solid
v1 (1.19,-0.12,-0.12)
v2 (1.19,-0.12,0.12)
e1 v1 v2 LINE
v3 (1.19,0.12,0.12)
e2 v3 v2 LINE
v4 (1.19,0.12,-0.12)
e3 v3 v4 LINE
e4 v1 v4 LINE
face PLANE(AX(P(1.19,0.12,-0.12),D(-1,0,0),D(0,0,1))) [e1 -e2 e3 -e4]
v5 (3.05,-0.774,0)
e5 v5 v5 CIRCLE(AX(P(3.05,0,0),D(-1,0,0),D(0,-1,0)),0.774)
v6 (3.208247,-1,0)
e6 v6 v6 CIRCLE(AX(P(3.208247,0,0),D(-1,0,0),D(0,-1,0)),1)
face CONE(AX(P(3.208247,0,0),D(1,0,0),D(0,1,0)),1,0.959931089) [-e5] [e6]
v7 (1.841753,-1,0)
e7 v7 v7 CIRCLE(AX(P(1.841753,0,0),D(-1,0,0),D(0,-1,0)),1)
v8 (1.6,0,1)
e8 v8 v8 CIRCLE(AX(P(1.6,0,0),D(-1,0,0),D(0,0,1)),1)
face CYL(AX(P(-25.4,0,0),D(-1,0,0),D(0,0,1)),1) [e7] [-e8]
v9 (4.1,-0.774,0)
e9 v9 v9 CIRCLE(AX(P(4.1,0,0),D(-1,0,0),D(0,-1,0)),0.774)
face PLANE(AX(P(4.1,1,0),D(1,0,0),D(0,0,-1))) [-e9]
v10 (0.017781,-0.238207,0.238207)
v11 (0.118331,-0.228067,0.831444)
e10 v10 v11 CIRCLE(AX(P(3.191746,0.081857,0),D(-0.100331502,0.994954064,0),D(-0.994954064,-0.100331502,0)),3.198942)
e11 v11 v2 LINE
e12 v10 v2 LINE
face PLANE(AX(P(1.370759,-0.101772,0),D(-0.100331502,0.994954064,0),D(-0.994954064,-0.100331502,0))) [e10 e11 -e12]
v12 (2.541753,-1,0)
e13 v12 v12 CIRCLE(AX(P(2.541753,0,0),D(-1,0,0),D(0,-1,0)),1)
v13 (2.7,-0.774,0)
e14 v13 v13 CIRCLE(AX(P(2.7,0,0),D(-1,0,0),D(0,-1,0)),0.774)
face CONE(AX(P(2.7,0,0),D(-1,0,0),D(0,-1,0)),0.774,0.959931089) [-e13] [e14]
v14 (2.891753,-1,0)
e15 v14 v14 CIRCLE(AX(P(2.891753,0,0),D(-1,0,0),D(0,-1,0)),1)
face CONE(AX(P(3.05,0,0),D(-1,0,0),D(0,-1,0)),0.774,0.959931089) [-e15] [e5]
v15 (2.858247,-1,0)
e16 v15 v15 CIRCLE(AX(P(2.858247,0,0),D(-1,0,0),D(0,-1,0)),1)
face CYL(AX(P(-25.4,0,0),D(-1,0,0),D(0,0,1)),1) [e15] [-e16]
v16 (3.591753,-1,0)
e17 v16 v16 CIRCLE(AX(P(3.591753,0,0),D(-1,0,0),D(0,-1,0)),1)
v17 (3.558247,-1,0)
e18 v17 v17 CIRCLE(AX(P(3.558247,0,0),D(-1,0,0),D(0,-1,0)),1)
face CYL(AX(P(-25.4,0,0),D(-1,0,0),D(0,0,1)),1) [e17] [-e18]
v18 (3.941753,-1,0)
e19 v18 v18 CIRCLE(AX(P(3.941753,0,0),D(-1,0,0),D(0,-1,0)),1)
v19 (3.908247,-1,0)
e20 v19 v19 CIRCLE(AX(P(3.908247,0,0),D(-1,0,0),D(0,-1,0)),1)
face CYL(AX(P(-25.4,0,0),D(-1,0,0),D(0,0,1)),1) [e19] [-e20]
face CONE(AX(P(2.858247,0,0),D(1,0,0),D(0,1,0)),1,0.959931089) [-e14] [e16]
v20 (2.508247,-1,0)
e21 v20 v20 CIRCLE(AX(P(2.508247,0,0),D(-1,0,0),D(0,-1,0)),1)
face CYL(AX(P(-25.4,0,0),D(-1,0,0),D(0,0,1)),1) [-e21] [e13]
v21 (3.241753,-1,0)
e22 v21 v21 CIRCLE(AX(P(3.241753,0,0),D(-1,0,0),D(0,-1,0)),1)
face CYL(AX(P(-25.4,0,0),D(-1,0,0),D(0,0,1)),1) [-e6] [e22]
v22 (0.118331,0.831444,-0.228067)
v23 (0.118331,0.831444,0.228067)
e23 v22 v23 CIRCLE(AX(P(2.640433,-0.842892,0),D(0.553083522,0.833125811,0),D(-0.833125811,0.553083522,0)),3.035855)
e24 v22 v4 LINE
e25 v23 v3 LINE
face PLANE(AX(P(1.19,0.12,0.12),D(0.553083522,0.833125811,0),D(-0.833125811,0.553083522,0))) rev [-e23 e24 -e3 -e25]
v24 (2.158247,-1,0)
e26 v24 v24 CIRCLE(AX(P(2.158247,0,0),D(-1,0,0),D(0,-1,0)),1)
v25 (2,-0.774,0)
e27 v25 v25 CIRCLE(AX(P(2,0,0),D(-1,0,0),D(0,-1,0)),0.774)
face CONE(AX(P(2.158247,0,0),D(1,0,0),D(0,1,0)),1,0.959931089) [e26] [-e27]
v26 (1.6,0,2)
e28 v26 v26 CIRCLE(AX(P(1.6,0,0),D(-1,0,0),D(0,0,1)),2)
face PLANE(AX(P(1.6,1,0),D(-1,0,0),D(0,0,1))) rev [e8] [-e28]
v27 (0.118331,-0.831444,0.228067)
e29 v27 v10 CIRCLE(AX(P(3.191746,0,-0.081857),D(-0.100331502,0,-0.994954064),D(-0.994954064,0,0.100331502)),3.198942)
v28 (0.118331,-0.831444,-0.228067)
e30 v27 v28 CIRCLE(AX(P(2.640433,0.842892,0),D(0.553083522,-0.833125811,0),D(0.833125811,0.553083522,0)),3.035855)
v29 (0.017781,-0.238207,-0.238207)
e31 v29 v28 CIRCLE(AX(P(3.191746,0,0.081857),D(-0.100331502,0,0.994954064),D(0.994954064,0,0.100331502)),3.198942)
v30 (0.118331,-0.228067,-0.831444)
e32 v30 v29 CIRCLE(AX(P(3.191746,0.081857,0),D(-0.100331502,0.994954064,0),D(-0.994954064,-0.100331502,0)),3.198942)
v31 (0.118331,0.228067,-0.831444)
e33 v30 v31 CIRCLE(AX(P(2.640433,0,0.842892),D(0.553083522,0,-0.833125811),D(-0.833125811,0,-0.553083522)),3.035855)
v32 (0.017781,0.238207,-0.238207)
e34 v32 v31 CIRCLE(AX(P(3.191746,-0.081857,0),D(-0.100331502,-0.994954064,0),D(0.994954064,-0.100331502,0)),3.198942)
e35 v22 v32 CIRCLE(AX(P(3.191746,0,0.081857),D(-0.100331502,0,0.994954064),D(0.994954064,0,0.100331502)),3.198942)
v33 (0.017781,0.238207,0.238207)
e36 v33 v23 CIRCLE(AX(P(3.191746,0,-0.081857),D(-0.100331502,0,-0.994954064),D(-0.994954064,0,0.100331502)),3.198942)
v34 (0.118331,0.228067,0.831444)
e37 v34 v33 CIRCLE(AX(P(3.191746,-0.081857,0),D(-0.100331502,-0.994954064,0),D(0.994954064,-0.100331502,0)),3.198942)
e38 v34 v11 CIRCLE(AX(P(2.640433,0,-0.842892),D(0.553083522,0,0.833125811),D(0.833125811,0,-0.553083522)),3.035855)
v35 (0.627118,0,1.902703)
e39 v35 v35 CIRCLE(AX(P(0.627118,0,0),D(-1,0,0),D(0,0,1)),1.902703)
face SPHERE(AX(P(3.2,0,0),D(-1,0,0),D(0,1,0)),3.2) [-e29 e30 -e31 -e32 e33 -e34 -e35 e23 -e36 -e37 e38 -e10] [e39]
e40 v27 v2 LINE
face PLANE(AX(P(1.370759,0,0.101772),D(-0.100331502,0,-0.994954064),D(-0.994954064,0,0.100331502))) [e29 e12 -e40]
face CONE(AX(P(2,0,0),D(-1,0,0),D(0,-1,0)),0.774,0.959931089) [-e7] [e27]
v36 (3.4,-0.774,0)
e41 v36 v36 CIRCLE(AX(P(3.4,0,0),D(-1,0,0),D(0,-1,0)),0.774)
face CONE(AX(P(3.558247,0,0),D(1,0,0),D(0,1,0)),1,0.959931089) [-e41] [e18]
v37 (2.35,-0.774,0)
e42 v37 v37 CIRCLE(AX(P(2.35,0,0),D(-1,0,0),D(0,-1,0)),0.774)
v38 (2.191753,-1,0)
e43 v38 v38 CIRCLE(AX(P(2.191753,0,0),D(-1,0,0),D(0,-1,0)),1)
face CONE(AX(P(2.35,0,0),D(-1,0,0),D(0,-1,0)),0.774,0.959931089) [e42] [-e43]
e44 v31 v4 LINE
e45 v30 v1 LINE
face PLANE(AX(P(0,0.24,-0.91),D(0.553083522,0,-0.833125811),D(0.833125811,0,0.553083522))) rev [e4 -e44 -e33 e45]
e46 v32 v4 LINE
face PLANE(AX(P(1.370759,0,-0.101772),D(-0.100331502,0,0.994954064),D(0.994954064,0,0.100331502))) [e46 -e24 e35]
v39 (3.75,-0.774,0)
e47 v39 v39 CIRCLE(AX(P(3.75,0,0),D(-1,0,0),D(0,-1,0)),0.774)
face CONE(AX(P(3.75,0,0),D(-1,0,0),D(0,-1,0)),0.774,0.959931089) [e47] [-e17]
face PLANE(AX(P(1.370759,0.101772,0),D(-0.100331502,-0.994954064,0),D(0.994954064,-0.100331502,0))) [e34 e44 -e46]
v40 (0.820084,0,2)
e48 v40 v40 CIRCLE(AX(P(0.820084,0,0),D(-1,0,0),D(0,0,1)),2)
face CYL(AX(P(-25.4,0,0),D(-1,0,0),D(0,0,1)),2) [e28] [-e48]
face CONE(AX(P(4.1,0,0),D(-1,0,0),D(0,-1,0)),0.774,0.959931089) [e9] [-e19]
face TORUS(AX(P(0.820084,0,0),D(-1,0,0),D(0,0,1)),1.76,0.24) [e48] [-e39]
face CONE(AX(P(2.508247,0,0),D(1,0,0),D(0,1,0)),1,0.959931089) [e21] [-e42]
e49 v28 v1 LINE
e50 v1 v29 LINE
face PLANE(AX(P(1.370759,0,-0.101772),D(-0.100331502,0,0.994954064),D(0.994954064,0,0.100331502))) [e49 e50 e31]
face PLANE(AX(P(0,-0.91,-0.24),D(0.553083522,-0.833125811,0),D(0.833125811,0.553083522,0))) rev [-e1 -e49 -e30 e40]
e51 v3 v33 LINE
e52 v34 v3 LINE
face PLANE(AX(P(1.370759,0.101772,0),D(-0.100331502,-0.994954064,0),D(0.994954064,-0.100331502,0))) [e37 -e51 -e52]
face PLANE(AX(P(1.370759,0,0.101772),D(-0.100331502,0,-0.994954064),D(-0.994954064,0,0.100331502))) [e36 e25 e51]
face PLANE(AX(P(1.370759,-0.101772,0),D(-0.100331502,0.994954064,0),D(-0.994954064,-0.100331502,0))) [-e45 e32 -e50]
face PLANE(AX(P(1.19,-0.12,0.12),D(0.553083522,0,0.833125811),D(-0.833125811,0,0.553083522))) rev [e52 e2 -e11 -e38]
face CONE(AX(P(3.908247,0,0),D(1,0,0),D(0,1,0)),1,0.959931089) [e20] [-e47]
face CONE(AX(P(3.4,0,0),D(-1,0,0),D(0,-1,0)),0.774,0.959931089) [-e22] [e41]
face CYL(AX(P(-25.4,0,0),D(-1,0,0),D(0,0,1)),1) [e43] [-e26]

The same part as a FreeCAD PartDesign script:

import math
import FreeCAD as App
import Part
import Sketcher
Q = App.Units.Quantity


def add_polygon(sketch, points):
    """Adds a closed chain of lines whose ends are joined by coincident constraints."""
    first, n = sketch.GeometryCount, len(points)
    for a, b in zip(points, points[1:] + points[:1]):
        sketch.addGeometry(Part.LineSegment(App.Vector(*a, 0), App.Vector(*b, 0)), False)
    for i in range(n):
        sketch.addConstraint(Sketcher.Constraint("Coincident", first + i, 2, first + (i + 1) % n, 1))

doc = App.newDocument("Part")
body = doc.addObject("PartDesign::Body", "Body")

# Sketch on XY plane
sketch1 = body.newObject("Sketcher::SketchObject", "Sketch")
sketch1.AttachmentSupport = (doc.getObject("XY_Plane"), [""])
sketch1.MapMode = "FlatFace"
sketch1.addGeometry(Part.LineSegment(App.Vector(1.6, 1, 0), App.Vector(1.6, 2, 0)), False)
sketch1.addGeometry(Part.LineSegment(App.Vector(1.6, 2, 0), App.Vector(0.820084, 2, 0)), False)
sketch1.addGeometry(Part.ArcOfCircle(Part.Circle(App.Vector(0.820084, 1.76, 0), App.Vector(0, 0, 1), 0.24), math.radians(90.000001), math.radians(143.516262)), False)
sketch1.addGeometry(Part.ArcOfCircle(Part.Circle(App.Vector(3.2, 0, 0), App.Vector(0, 0, 1), 3.2), math.radians(143.516263), math.radians(180)), False)
sketch1.addGeometry(Part.LineSegment(App.Vector(0, 0, 0), App.Vector(4.1, 0, 0)), False)
sketch1.addGeometry(Part.LineSegment(App.Vector(4.1, 0, 0), App.Vector(4.1, 1, 0)), False)
sketch1.addGeometry(Part.LineSegment(App.Vector(4.1, 1, 0), App.Vector(1.6, 1, 0)), False)
sketch1.addConstraint(Sketcher.Constraint("Coincident", 0, 2, 1, 1))
sketch1.addConstraint(Sketcher.Constraint("Tangent", 1, 2, 2, 1))
sketch1.addConstraint(Sketcher.Constraint("Tangent", 2, 2, 3, 1))
sketch1.addConstraint(Sketcher.Constraint("Coincident", 3, 2, 4, 1))
sketch1.addConstraint(Sketcher.Constraint("Coincident", 4, 2, 5, 1))
sketch1.addConstraint(Sketcher.Constraint("Coincident", 5, 2, 6, 1))
sketch1.addConstraint(Sketcher.Constraint("Coincident", 6, 2, 0, 1))
sketch1.addConstraint(Sketcher.Constraint("Vertical", 0))
sketch1.addConstraint(Sketcher.Constraint("Horizontal", 1))
sketch1.addConstraint(Sketcher.Constraint("Horizontal", 4))
sketch1.addConstraint(Sketcher.Constraint("Vertical", 5))
sketch1.addConstraint(Sketcher.Constraint("Horizontal", 6))
sketch1.addConstraint(Sketcher.Constraint("Coincident", 3, 2, -1, 1))
sketch1.addConstraint(Sketcher.Constraint("PointOnObject", 3, 3, -1))
sketch1.addConstraint(Sketcher.Constraint("Equal", 0, 5))
sketch1.addConstraint(Sketcher.Constraint("Radius", 3, 3.2))
sketch1.addConstraint(Sketcher.Constraint("DistanceY", 0, 1, 0, 2, 1.0))
sketch1.addConstraint(Sketcher.Constraint("Radius", 2, 0.24))
sketch1.addConstraint(Sketcher.Constraint("DistanceX", 4, 1, 4, 2, 4.1))
sketch1.addConstraint(Sketcher.Constraint("DistanceX", 6, 2, 6, 1, 2.5))
revolution = body.newObject("PartDesign::Revolution", "Revolution")
revolution.Profile = sketch1
revolution.ReferenceAxis = (sketch1, ["H_Axis"])
revolution.Angle = 360

# Sketch on YZ plane
sketch2 = body.newObject("Sketcher::SketchObject", "Sketch001")
sketch2.AttachmentSupport = (doc.getObject("YZ_Plane"), [""])
sketch2.MapMode = "FlatFace"
add_polygon(sketch2, [(-0.91, 0.24), (-0.91, -0.24), (0.91, -0.24), (0.91, 0.24)])  # lines 0-3
sketch2.addConstraint(Sketcher.Constraint("Vertical", 0))
sketch2.addConstraint(Sketcher.Constraint("Horizontal", 1))
sketch2.addConstraint(Sketcher.Constraint("Vertical", 2))
sketch2.addConstraint(Sketcher.Constraint("Horizontal", 3))
sketch2.addConstraint(Sketcher.Constraint("Symmetric", 0, 2, 2, 2, -1, 1))
sketch2.addConstraint(Sketcher.Constraint("DistanceX", 1, 1, 1, 2, 1.82))
sketch2.addConstraint(Sketcher.Constraint("DistanceY", 0, 2, 0, 1, 0.48))

# Sketch on YZ plane
sketch3 = body.newObject("Sketcher::SketchObject", "Sketch002")
sketch3.AttachmentSupport = (doc.getObject("YZ_Plane"), [""])
sketch3.MapMode = "FlatFace"
sketch3.AttachmentOffset = App.Placement(App.Vector(0, 0, 1.19), App.Rotation())
add_polygon(sketch3, [(-0.12, 0.12), (-0.12, -0.12), (0.12, -0.12), (0.12, 0.12)])  # lines 0-3
sketch3.addConstraint(Sketcher.Constraint("Vertical", 0))
sketch3.addConstraint(Sketcher.Constraint("Horizontal", 1))
sketch3.addConstraint(Sketcher.Constraint("Vertical", 2))
sketch3.addConstraint(Sketcher.Constraint("Horizontal", 3))
sketch3.addConstraint(Sketcher.Constraint("Symmetric", 0, 2, 2, 2, -1, 1))
sketch3.addConstraint(Sketcher.Constraint("Equal", 3, 0))
sketch3.addConstraint(Sketcher.Constraint("DistanceX", 1, 1, 1, 2, 0.24))

subtractiveloft = body.newObject("PartDesign::SubtractiveLoft", "SubtractiveLoft")
subtractiveloft.Profile = sketch2
subtractiveloft.Sections = [sketch3]
doc.recompute()

polarpattern = body.newObject("PartDesign::PolarPattern", "PolarPattern")
polarpattern.Originals = [subtractiveloft]
polarpattern.Axis = (doc.getObject("X_Axis"), [""])
polarpattern.Angle = 90
polarpattern.Occurrences = 2
body.Tip = polarpattern

# Sketch on XY plane
sketch4 = body.newObject("Sketcher::SketchObject", "Sketch003")
sketch4.AttachmentSupport = (doc.getObject("XY_Plane"), [""])
sketch4.MapMode = "FlatFace"
add_polygon(sketch4, [(2, -0.774), (1.841753, -1), (1.841753, -1.25), (2.158247, -1.25), (2.158247, -1)])  # lines 0-4
sketch4.addConstraint(Sketcher.Constraint("Vertical", 1))
sketch4.addConstraint(Sketcher.Constraint("Horizontal", 2))
sketch4.addConstraint(Sketcher.Constraint("Vertical", 3))
sketch4.addConstraint(Sketcher.Constraint("Horizontal", 0, 2, 3, 2))
sketch4.addConstraint(Sketcher.Constraint("Equal", 0, 4))
sketch4.addConstraint(Sketcher.Constraint("Angle", 0, Q("-125 deg")))
sketch4.addConstraint(Sketcher.Constraint("DistanceY", 0, 2, -1, 1, 1.0))
sketch4.addConstraint(Sketcher.Constraint("DistanceX", -1, 1, 4, 2, 2.0))
sketch4.addConstraint(Sketcher.Constraint("DistanceY", 1, 2, 1, 1, 0.25))
sketch4.addConstraint(Sketcher.Constraint("DistanceY", 4, 2, -1, 1, 0.774))
groove = body.newObject("PartDesign::Groove", "Groove")
groove.Profile = sketch4
groove.ReferenceAxis = (sketch4, ["H_Axis"])
groove.Angle = 360
doc.recompute()

linearpattern = body.newObject("PartDesign::LinearPattern", "LinearPattern")
linearpattern.Originals = [groove]
linearpattern.Direction = (doc.getObject("X_Axis"), [""])
linearpattern.Mode = "offset"
linearpattern.Offset = 0.35
linearpattern.Occurrences = 7
body.Tip = linearpattern

doc.recompute()
